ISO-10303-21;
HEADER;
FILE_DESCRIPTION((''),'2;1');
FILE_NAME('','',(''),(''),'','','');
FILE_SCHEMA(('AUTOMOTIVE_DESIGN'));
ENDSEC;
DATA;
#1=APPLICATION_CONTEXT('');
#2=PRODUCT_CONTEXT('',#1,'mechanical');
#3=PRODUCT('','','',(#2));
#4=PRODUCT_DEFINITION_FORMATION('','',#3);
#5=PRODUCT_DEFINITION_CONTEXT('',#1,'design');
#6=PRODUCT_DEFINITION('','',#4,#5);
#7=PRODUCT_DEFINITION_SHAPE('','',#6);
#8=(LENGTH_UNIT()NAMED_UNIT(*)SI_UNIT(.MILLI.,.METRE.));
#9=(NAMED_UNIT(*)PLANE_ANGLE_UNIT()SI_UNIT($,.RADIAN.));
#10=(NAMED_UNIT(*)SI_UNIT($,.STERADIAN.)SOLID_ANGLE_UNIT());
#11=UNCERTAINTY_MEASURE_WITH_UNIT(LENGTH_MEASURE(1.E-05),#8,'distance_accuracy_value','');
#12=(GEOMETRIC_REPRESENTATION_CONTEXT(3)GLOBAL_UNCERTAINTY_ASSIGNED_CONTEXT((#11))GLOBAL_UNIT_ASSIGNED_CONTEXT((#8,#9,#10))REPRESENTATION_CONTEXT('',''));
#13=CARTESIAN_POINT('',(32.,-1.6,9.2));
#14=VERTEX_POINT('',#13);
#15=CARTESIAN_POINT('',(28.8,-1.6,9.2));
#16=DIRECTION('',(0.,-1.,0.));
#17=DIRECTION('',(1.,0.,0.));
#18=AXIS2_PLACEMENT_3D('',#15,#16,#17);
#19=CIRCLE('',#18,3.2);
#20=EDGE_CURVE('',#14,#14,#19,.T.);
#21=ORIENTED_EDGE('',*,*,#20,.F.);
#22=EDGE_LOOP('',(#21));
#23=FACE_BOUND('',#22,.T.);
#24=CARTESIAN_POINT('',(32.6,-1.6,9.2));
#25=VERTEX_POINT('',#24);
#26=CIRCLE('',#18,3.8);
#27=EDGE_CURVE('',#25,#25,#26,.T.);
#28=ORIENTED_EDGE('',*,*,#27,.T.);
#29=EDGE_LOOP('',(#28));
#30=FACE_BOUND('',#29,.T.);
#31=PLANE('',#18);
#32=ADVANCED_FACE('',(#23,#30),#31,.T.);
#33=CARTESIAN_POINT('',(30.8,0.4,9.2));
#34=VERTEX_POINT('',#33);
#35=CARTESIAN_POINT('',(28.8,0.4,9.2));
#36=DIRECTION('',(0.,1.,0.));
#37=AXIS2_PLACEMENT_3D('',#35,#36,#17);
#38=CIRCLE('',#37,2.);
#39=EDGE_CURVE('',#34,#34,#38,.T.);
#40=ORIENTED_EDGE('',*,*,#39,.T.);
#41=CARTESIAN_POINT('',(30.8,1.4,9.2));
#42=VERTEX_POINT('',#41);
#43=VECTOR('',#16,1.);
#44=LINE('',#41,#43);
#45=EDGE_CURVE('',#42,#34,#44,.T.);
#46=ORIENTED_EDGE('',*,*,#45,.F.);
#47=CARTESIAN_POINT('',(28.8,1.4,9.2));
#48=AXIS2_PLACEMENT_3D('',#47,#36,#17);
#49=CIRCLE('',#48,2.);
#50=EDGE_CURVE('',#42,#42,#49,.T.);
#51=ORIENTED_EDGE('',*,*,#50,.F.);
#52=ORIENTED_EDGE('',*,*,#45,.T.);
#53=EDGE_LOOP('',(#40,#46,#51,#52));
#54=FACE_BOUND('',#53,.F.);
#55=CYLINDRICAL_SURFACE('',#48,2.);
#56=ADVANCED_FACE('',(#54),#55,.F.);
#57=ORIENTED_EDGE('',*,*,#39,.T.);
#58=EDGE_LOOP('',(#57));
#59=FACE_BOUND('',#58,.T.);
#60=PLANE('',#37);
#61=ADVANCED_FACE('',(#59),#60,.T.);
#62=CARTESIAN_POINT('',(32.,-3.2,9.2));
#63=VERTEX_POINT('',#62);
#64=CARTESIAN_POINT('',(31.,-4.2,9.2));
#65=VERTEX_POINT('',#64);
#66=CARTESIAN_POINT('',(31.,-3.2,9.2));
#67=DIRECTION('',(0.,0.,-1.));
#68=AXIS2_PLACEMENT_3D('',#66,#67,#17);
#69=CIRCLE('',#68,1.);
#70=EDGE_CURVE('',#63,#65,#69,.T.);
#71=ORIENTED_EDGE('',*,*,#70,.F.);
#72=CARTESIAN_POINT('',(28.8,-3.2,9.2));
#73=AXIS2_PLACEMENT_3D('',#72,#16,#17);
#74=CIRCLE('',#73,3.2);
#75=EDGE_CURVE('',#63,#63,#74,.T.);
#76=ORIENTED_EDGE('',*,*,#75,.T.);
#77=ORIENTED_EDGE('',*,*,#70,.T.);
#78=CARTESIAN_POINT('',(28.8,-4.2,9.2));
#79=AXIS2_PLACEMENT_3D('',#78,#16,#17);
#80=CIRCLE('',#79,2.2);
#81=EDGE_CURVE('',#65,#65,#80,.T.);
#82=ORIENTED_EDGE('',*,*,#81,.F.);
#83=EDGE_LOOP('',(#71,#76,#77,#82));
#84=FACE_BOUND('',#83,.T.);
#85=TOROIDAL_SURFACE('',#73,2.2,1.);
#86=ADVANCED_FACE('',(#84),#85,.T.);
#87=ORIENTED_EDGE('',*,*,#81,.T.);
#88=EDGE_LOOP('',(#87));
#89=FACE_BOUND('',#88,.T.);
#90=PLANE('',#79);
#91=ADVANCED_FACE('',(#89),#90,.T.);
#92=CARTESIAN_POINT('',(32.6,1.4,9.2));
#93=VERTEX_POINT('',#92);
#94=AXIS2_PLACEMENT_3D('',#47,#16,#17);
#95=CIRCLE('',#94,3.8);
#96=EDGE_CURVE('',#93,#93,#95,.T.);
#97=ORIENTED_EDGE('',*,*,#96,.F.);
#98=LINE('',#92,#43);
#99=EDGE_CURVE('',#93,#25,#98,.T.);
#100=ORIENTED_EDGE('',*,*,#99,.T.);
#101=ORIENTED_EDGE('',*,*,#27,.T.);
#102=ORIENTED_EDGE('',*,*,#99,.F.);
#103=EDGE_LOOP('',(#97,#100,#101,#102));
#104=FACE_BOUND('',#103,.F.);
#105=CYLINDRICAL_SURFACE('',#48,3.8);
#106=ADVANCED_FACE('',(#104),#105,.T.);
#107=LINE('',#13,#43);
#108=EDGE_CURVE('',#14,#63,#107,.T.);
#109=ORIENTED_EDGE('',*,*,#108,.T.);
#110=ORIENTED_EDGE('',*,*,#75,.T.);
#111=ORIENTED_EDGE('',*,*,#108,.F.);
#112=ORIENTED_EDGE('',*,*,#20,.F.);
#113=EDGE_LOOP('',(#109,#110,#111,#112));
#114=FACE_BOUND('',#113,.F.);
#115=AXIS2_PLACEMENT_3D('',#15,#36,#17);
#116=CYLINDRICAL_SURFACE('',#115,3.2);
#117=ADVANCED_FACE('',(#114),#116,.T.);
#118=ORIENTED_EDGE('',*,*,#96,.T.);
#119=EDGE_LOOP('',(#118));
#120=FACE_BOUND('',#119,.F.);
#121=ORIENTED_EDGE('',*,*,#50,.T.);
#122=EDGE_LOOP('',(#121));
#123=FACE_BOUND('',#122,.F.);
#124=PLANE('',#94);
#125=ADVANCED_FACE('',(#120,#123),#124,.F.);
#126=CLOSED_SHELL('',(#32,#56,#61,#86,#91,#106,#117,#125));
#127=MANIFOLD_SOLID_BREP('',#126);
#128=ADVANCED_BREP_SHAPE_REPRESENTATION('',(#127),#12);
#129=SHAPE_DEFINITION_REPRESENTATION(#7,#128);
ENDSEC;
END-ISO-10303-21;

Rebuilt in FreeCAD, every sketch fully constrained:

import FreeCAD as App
import Part
import Sketcher

V = App.Vector
Q = App.Units.Quantity


def edges_at(feature, points):
    """Names of the edges that pass closest to the given points."""
    edges = feature.Shape.Edges
    near = lambda p: min(range(len(edges)), key=lambda i: edges[i].distToShape(Part.Vertex(*p))[0])
    return sorted({f"Edge{near(p) + 1}" for p in points})

doc = App.newDocument("Part")
body = doc.addObject("PartDesign::Body", "Body")

sketch1 = doc.addObject("Sketcher::SketchObject", "Sketch")
body.addObject(sketch1)
sketch1.AttachmentSupport = (doc.XZ_Plane, [""])
sketch1.MapMode = "FlatFace"
sketch1.addGeometry(Part.Circle(V(28.8, 9.2, 0), V(0, 0, 1), 3.8), False)
sketch1.addConstraint([
    Sketcher.Constraint("Diameter", 0, Q("7.6 mm")),
    Sketcher.Constraint("DistanceX", -1, 1, 0, 3, Q("28.8 mm")),
    Sketcher.Constraint("DistanceY", -1, 1, 0, 3, Q("9.2 mm")),
])
pad1 = doc.addObject("PartDesign::Pad", "Pad")
body.addObject(pad1)
pad1.Profile = sketch1
pad1.Length = 3

sketch2 = doc.addObject("Sketcher::SketchObject", "Sketch001")
body.addObject(sketch2)
sketch2.AttachmentSupport = (doc.XZ_Plane, [""])
sketch2.MapMode = "FlatFace"
sketch2.AttachmentOffset = App.Placement(V(0, 0, 3), App.Rotation())
sketch2.addGeometry(Part.Circle(V(28.8, 9.2, 0), V(0, 0, 1), 3.2), False)
sketch2.addConstraint([
    Sketcher.Constraint("Diameter", 0, Q("6.4 mm")),
    Sketcher.Constraint("DistanceX", -1, 1, 0, 3, Q("28.8 mm")),
    Sketcher.Constraint("DistanceY", -1, 1, 0, 3, Q("9.2 mm")),
])
pad2 = doc.addObject("PartDesign::Pad", "Pad001")
body.addObject(pad2)
pad2.Profile = sketch2
pad2.Length = 2.6
doc.recompute()

fillet = doc.addObject("PartDesign::Fillet", "Fillet")
body.addObject(fillet)
fillet.Base = (pad2, edges_at(pad2, [(25.6, -5.6, 9.2)]))
fillet.Radius = 1

sketch3 = doc.addObject("Sketcher::SketchObject", "Sketch002")
body.addObject(sketch3)
sketch3.AttachmentSupport = (doc.XZ_Plane, [""])
sketch3.MapMode = "FlatFace"
sketch3.addGeometry(Part.Circle(V(28.8, 9.2, 0), V(0, 0, 1), 2), False)
sketch3.addConstraint([
    Sketcher.Constraint("Diameter", 0, Q("4 mm")),
    Sketcher.Constraint("DistanceX", -1, 1, 0, 3, Q("28.8 mm")),
    Sketcher.Constraint("DistanceY", -1, 1, 0, 3, Q("9.2 mm")),
])
pocket1 = doc.addObject("PartDesign::Pocket", "Pocket")
body.addObject(pocket1)
pocket1.Profile = sketch3
pocket1.Length = 1
pocket1.Reversed = True
body2 = doc.addObject("PartDesign::Body", "Body001")
doc.recompute()

body.Placement = App.Placement(V(0, 1.4, 0), App.Rotation(V(0, 0, 1), 0))
boolean = doc.addObject("PartDesign::Boolean", "Boolean")
body2.addObject(boolean)
boolean.Type = "Fuse"
boolean.addObjects([body])

doc.recompute()
